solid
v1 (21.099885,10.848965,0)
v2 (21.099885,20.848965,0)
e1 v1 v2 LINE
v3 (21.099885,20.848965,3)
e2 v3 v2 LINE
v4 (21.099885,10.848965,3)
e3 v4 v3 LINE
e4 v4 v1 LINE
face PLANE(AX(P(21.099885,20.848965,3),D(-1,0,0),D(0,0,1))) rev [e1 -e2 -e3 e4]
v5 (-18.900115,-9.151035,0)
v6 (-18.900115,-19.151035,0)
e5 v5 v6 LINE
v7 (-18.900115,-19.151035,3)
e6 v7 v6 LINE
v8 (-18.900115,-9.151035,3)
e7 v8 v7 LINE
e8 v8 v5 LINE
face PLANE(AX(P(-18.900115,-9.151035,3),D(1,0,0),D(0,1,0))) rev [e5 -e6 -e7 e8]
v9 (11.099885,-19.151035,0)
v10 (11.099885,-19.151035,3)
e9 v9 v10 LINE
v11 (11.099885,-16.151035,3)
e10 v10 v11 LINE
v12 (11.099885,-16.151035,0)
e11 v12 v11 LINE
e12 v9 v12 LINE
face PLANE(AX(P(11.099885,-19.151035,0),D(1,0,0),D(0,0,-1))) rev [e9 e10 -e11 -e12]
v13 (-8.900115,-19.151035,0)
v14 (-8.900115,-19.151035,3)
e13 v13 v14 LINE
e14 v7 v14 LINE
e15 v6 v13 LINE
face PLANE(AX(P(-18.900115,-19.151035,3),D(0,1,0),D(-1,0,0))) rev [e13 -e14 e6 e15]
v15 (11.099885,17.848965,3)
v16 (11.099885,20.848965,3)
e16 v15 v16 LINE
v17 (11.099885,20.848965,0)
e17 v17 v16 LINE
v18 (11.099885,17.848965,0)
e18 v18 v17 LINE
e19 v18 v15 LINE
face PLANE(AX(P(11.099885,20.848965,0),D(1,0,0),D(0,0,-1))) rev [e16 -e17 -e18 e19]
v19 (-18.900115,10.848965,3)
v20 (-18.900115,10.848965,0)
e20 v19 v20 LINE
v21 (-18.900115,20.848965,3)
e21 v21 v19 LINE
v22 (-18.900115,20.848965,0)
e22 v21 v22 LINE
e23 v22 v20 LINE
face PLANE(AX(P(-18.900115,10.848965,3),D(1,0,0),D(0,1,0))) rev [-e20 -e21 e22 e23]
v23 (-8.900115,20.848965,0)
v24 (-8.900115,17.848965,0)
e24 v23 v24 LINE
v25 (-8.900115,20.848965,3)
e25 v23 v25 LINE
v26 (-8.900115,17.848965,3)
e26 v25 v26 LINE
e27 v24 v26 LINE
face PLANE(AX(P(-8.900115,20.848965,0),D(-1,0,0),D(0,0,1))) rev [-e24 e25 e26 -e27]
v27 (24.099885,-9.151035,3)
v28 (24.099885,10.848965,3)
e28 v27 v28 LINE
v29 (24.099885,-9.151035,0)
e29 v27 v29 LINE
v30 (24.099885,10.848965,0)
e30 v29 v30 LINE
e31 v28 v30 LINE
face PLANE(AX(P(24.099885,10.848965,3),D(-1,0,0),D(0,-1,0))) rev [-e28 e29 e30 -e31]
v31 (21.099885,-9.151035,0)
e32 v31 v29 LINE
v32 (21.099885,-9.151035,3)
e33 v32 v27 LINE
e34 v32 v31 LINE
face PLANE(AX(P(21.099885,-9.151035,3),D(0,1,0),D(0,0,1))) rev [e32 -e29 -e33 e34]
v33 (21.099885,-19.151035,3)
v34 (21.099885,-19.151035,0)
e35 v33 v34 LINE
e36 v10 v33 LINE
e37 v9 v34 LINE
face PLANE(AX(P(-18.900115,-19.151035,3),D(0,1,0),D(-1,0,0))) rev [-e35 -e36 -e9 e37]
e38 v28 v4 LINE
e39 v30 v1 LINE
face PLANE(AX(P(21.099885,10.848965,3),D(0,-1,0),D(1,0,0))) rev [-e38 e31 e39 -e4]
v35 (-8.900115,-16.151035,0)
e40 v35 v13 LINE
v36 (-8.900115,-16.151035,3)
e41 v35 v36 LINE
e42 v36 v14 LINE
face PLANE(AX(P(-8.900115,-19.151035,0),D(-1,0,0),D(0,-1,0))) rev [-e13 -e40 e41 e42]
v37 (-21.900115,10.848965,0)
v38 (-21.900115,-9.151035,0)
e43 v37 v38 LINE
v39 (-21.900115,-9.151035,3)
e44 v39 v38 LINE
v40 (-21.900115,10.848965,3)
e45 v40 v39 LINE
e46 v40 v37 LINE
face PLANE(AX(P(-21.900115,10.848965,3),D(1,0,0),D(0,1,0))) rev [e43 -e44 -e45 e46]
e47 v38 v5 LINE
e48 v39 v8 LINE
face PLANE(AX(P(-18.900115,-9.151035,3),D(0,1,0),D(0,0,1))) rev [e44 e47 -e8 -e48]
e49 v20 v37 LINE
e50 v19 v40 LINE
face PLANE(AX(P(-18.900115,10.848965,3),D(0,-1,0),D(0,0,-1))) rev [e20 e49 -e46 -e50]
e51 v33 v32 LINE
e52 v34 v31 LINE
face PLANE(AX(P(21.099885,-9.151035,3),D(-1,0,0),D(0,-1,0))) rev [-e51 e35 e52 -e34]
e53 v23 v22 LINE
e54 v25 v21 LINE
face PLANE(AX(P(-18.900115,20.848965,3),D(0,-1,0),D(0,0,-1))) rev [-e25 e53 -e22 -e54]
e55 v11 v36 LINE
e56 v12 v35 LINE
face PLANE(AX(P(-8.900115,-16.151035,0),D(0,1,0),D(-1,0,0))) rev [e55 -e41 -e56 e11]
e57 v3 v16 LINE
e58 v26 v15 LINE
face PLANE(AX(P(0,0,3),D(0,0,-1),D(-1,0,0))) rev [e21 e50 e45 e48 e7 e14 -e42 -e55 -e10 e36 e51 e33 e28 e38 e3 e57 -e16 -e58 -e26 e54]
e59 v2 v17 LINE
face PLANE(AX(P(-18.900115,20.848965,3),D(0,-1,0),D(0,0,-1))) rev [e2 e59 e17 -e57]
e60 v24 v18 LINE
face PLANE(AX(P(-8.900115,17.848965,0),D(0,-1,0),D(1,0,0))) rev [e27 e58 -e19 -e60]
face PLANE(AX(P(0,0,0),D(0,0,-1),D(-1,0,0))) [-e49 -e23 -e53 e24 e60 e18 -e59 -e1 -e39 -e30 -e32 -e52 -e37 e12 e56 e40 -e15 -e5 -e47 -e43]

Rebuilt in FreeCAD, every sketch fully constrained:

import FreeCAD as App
import Part
import Sketcher
from FreeCAD import Vector

doc = App.newDocument("Part")
body = doc.addObject("PartDesign::Body", "Body")

# Sketch on XY plane
sketch1 = body.newObject("Sketcher::SketchObject", "Sketch")
sketch1.AttachmentSupport = (doc.getObject("XY_Plane"), [""])
sketch1.MapMode = "FlatFace"
sketch1.addGeometry(Part.LineSegment(Vector(21.099885, 20.848965, 0), Vector(-18.900115, 20.848965, 0)), False)
sketch1.addGeometry(Part.LineSegment(Vector(-18.900115, 20.848965, 0), Vector(-18.900115, 10.848965, 0)), False)
sketch1.addGeometry(Part.LineSegment(Vector(-18.900115, 10.848965, 0), Vector(-21.900115, 10.848965, 0)), False)
sketch1.addGeometry(Part.LineSegment(Vector(-21.900115, 10.848965, 0), Vector(-21.900115, -9.151035, 0)), False)
sketch1.addGeometry(Part.LineSegment(Vector(-21.900115, -9.151035, 0), Vector(-18.900115, -9.151035, 0)), False)
sketch1.addGeometry(Part.LineSegment(Vector(-18.900115, -9.151035, 0), Vector(-18.900115, -19.151035, 0)), False)
sketch1.addGeometry(Part.LineSegment(Vector(-18.900115, -19.151035, 0), Vector(21.099885, -19.151035, 0)), False)
sketch1.addGeometry(Part.LineSegment(Vector(21.099885, -19.151035, 0), Vector(21.099885, -9.151035, 0)), False)
sketch1.addGeometry(Part.LineSegment(Vector(21.099885, -9.151035, 0), Vector(24.099885, -9.151035, 0)), False)
sketch1.addGeometry(Part.LineSegment(Vector(24.099885, -9.151035, 0), Vector(24.099885, 10.848965, 0)), False)
sketch1.addGeometry(Part.LineSegment(Vector(24.099885, 10.848965, 0), Vector(21.099885, 10.848965, 0)), False)
sketch1.addGeometry(Part.LineSegment(Vector(21.099885, 10.848965, 0), Vector(21.099885, 20.848965, 0)), False)
sketch1.addConstraint(Sketcher.Constraint("Coincident", 0, 2, 1, 1))
sketch1.addConstraint(Sketcher.Constraint("Coincident", 1, 2, 2, 1))
sketch1.addConstraint(Sketcher.Constraint("Coincident", 2, 2, 3, 1))
sketch1.addConstraint(Sketcher.Constraint("Coincident", 3, 2, 4, 1))
sketch1.addConstraint(Sketcher.Constraint("Coincident", 4, 2, 5, 1))
sketch1.addConstraint(Sketcher.Constraint("Coincident", 5, 2, 6, 1))
sketch1.addConstraint(Sketcher.Constraint("Coincident", 6, 2, 7, 1))
sketch1.addConstraint(Sketcher.Constraint("Coincident", 7, 2, 8, 1))
sketch1.addConstraint(Sketcher.Constraint("Coincident", 8, 2, 9, 1))
sketch1.addConstraint(Sketcher.Constraint("Coincident", 9, 2, 10, 1))
sketch1.addConstraint(Sketcher.Constraint("Coincident", 10, 2, 11, 1))
sketch1.addConstraint(Sketcher.Constraint("Coincident", 11, 2, 0, 1))
sketch1.addConstraint(Sketcher.Constraint("Horizontal", 0))
sketch1.addConstraint(Sketcher.Constraint("Vertical", 1))
sketch1.addConstraint(Sketcher.Constraint("Horizontal", 2))
sketch1.addConstraint(Sketcher.Constraint("Vertical", 3))
sketch1.addConstraint(Sketcher.Constraint("Horizontal", 4))
sketch1.addConstraint(Sketcher.Constraint("Vertical", 5))
sketch1.addConstraint(Sketcher.Constraint("Horizontal", 6))
sketch1.addConstraint(Sketcher.Constraint("Vertical", 7))
sketch1.addConstraint(Sketcher.Constraint("Horizontal", 8))
sketch1.addConstraint(Sketcher.Constraint("Vertical", 9))
sketch1.addConstraint(Sketcher.Constraint("Horizontal", 10))
sketch1.addConstraint(Sketcher.Constraint("Vertical", 11))
sketch1.addConstraint(Sketcher.Constraint("Horizontal", 4, 2, 7, 2))
sketch1.addConstraint(Sketcher.Constraint("Horizontal", 2, 2, 9, 2))
sketch1.addConstraint(Sketcher.Constraint("Vertical", 1, 2, 4, 2))
sketch1.addConstraint(Sketcher.Constraint("Vertical", 7, 2, 10, 2))
sketch1.addConstraint(Sketcher.Constraint("Equal", 4, 8))
sketch1.addConstraint(Sketcher.Constraint("Equal", 1, 5))
sketch1.addConstraint(Sketcher.Constraint("DistanceX", 0, 2, 0, 1, 40.0))
sketch1.addConstraint(Sketcher.Constraint("DistanceX", 2, 2, 2, 1, 3.0))
sketch1.addConstraint(Sketcher.Constraint("DistanceY", 1, 2, 1, 1, 10.0))
sketch1.addConstraint(Sketcher.Constraint("DistanceY", 3, 2, 3, 1, 20.0))
sketch1.addConstraint(Sketcher.Constraint("DistanceX", 0, 2, -1, 1, 18.900115))
sketch1.addConstraint(Sketcher.Constraint("DistanceY", -1, 1, 0, 2, 20.848965))
pad1 = body.newObject("PartDesign::Pad", "Pad")
pad1.Profile = sketch1
pad1.Length = 3

# Sketch on XY plane
sketch2 = body.newObject("Sketcher::SketchObject", "Sketch001")
sketch2.AttachmentSupport = (doc.getObject("XY_Plane"), [""])
sketch2.MapMode = "FlatFace"
sketch2.AttachmentOffset = App.Placement(Vector(0, 0, 3), App.Rotation())
sketch2.addGeometry(Part.LineSegment(Vector(-8.900115, 20.848965, 0), Vector(-8.900115, 17.848965, 0)), False)
sketch2.addGeometry(Part.LineSegment(Vector(-8.900115, 17.848965, 0), Vector(11.099885, 17.848965, 0)), False)
sketch2.addGeometry(Part.LineSegment(Vector(11.099885, 17.848965, 0), Vector(11.099885, 20.848965, 0)), False)
sketch2.addGeometry(Part.LineSegment(Vector(11.099885, 20.848965, 0), Vector(-8.900115, 20.848965, 0)), False)
sketch2.addGeometry(Part.LineSegment(Vector(-8.900115, -16.151035, 0), Vector(-8.900115, -19.151035, 0)), False)
sketch2.addGeometry(Part.LineSegment(Vector(-8.900115, -19.151035, 0), Vector(11.099885, -19.151035, 0)), False)
sketch2.addGeometry(Part.LineSegment(Vector(11.099885, -19.151035, 0), Vector(11.099885, -16.151035, 0)), False)
sketch2.addGeometry(Part.LineSegment(Vector(11.099885, -16.151035, 0), Vector(-8.900115, -16.151035, 0)), False)
sketch2.addConstraint(Sketcher.Constraint("Coincident", 0, 2, 1, 1))
sketch2.addConstraint(Sketcher.Constraint("Coincident", 1, 2, 2, 1))
sketch2.addConstraint(Sketcher.Constraint("Coincident", 2, 2, 3, 1))
sketch2.addConstraint(Sketcher.Constraint("Coincident", 3, 2, 0, 1))
sketch2.addConstraint(Sketcher.Constraint("Coincident", 4, 2, 5, 1))
sketch2.addConstraint(Sketcher.Constraint("Coincident", 5, 2, 6, 1))
sketch2.addConstraint(Sketcher.Constraint("Coincident", 6, 2, 7, 1))
sketch2.addConstraint(Sketcher.Constraint("Coincident", 7, 2, 4, 1))
sketch2.addConstraint(Sketcher.Constraint("Vertical", 0))
sketch2.addConstraint(Sketcher.Constraint("Horizontal", 1))
sketch2.addConstraint(Sketcher.Constraint("Vertical", 2))
sketch2.addConstraint(Sketcher.Constraint("Horizontal", 3))
sketch2.addConstraint(Sketcher.Constraint("Vertical", 4))
sketch2.addConstraint(Sketcher.Constraint("Horizontal", 5))
sketch2.addConstraint(Sketcher.Constraint("Vertical", 6))
sketch2.addConstraint(Sketcher.Constraint("Horizontal", 7))
sketch2.addConstraint(Sketcher.Constraint("Vertical", 3, 2, 4, 2))
sketch2.addConstraint(Sketcher.Constraint("Vertical", 2, 2, 5, 2))
sketch2.addConstraint(Sketcher.Constraint("Equal", 2, 4))
sketch2.addConstraint(Sketcher.Constraint("DistanceX", 1, 1, 1, 2, 20.0))
sketch2.addConstraint(Sketcher.Constraint("DistanceY", 0, 2, 0, 1, 3.0))
sketch2.addConstraint(Sketcher.Constraint("DistanceY", 4, 2, 0, 2, 37.0))
sketch2.addConstraint(Sketcher.Constraint("DistanceX", 0, 2, -1, 1, 8.900115))
sketch2.addConstraint(Sketcher.Constraint("DistanceY", -1, 1, 0, 2, 17.848965))
pocket1 = body.newObject("PartDesign::Pocket", "Pocket")
pocket1.Profile = sketch2
pocket1.Length = 3

doc.recompute()
